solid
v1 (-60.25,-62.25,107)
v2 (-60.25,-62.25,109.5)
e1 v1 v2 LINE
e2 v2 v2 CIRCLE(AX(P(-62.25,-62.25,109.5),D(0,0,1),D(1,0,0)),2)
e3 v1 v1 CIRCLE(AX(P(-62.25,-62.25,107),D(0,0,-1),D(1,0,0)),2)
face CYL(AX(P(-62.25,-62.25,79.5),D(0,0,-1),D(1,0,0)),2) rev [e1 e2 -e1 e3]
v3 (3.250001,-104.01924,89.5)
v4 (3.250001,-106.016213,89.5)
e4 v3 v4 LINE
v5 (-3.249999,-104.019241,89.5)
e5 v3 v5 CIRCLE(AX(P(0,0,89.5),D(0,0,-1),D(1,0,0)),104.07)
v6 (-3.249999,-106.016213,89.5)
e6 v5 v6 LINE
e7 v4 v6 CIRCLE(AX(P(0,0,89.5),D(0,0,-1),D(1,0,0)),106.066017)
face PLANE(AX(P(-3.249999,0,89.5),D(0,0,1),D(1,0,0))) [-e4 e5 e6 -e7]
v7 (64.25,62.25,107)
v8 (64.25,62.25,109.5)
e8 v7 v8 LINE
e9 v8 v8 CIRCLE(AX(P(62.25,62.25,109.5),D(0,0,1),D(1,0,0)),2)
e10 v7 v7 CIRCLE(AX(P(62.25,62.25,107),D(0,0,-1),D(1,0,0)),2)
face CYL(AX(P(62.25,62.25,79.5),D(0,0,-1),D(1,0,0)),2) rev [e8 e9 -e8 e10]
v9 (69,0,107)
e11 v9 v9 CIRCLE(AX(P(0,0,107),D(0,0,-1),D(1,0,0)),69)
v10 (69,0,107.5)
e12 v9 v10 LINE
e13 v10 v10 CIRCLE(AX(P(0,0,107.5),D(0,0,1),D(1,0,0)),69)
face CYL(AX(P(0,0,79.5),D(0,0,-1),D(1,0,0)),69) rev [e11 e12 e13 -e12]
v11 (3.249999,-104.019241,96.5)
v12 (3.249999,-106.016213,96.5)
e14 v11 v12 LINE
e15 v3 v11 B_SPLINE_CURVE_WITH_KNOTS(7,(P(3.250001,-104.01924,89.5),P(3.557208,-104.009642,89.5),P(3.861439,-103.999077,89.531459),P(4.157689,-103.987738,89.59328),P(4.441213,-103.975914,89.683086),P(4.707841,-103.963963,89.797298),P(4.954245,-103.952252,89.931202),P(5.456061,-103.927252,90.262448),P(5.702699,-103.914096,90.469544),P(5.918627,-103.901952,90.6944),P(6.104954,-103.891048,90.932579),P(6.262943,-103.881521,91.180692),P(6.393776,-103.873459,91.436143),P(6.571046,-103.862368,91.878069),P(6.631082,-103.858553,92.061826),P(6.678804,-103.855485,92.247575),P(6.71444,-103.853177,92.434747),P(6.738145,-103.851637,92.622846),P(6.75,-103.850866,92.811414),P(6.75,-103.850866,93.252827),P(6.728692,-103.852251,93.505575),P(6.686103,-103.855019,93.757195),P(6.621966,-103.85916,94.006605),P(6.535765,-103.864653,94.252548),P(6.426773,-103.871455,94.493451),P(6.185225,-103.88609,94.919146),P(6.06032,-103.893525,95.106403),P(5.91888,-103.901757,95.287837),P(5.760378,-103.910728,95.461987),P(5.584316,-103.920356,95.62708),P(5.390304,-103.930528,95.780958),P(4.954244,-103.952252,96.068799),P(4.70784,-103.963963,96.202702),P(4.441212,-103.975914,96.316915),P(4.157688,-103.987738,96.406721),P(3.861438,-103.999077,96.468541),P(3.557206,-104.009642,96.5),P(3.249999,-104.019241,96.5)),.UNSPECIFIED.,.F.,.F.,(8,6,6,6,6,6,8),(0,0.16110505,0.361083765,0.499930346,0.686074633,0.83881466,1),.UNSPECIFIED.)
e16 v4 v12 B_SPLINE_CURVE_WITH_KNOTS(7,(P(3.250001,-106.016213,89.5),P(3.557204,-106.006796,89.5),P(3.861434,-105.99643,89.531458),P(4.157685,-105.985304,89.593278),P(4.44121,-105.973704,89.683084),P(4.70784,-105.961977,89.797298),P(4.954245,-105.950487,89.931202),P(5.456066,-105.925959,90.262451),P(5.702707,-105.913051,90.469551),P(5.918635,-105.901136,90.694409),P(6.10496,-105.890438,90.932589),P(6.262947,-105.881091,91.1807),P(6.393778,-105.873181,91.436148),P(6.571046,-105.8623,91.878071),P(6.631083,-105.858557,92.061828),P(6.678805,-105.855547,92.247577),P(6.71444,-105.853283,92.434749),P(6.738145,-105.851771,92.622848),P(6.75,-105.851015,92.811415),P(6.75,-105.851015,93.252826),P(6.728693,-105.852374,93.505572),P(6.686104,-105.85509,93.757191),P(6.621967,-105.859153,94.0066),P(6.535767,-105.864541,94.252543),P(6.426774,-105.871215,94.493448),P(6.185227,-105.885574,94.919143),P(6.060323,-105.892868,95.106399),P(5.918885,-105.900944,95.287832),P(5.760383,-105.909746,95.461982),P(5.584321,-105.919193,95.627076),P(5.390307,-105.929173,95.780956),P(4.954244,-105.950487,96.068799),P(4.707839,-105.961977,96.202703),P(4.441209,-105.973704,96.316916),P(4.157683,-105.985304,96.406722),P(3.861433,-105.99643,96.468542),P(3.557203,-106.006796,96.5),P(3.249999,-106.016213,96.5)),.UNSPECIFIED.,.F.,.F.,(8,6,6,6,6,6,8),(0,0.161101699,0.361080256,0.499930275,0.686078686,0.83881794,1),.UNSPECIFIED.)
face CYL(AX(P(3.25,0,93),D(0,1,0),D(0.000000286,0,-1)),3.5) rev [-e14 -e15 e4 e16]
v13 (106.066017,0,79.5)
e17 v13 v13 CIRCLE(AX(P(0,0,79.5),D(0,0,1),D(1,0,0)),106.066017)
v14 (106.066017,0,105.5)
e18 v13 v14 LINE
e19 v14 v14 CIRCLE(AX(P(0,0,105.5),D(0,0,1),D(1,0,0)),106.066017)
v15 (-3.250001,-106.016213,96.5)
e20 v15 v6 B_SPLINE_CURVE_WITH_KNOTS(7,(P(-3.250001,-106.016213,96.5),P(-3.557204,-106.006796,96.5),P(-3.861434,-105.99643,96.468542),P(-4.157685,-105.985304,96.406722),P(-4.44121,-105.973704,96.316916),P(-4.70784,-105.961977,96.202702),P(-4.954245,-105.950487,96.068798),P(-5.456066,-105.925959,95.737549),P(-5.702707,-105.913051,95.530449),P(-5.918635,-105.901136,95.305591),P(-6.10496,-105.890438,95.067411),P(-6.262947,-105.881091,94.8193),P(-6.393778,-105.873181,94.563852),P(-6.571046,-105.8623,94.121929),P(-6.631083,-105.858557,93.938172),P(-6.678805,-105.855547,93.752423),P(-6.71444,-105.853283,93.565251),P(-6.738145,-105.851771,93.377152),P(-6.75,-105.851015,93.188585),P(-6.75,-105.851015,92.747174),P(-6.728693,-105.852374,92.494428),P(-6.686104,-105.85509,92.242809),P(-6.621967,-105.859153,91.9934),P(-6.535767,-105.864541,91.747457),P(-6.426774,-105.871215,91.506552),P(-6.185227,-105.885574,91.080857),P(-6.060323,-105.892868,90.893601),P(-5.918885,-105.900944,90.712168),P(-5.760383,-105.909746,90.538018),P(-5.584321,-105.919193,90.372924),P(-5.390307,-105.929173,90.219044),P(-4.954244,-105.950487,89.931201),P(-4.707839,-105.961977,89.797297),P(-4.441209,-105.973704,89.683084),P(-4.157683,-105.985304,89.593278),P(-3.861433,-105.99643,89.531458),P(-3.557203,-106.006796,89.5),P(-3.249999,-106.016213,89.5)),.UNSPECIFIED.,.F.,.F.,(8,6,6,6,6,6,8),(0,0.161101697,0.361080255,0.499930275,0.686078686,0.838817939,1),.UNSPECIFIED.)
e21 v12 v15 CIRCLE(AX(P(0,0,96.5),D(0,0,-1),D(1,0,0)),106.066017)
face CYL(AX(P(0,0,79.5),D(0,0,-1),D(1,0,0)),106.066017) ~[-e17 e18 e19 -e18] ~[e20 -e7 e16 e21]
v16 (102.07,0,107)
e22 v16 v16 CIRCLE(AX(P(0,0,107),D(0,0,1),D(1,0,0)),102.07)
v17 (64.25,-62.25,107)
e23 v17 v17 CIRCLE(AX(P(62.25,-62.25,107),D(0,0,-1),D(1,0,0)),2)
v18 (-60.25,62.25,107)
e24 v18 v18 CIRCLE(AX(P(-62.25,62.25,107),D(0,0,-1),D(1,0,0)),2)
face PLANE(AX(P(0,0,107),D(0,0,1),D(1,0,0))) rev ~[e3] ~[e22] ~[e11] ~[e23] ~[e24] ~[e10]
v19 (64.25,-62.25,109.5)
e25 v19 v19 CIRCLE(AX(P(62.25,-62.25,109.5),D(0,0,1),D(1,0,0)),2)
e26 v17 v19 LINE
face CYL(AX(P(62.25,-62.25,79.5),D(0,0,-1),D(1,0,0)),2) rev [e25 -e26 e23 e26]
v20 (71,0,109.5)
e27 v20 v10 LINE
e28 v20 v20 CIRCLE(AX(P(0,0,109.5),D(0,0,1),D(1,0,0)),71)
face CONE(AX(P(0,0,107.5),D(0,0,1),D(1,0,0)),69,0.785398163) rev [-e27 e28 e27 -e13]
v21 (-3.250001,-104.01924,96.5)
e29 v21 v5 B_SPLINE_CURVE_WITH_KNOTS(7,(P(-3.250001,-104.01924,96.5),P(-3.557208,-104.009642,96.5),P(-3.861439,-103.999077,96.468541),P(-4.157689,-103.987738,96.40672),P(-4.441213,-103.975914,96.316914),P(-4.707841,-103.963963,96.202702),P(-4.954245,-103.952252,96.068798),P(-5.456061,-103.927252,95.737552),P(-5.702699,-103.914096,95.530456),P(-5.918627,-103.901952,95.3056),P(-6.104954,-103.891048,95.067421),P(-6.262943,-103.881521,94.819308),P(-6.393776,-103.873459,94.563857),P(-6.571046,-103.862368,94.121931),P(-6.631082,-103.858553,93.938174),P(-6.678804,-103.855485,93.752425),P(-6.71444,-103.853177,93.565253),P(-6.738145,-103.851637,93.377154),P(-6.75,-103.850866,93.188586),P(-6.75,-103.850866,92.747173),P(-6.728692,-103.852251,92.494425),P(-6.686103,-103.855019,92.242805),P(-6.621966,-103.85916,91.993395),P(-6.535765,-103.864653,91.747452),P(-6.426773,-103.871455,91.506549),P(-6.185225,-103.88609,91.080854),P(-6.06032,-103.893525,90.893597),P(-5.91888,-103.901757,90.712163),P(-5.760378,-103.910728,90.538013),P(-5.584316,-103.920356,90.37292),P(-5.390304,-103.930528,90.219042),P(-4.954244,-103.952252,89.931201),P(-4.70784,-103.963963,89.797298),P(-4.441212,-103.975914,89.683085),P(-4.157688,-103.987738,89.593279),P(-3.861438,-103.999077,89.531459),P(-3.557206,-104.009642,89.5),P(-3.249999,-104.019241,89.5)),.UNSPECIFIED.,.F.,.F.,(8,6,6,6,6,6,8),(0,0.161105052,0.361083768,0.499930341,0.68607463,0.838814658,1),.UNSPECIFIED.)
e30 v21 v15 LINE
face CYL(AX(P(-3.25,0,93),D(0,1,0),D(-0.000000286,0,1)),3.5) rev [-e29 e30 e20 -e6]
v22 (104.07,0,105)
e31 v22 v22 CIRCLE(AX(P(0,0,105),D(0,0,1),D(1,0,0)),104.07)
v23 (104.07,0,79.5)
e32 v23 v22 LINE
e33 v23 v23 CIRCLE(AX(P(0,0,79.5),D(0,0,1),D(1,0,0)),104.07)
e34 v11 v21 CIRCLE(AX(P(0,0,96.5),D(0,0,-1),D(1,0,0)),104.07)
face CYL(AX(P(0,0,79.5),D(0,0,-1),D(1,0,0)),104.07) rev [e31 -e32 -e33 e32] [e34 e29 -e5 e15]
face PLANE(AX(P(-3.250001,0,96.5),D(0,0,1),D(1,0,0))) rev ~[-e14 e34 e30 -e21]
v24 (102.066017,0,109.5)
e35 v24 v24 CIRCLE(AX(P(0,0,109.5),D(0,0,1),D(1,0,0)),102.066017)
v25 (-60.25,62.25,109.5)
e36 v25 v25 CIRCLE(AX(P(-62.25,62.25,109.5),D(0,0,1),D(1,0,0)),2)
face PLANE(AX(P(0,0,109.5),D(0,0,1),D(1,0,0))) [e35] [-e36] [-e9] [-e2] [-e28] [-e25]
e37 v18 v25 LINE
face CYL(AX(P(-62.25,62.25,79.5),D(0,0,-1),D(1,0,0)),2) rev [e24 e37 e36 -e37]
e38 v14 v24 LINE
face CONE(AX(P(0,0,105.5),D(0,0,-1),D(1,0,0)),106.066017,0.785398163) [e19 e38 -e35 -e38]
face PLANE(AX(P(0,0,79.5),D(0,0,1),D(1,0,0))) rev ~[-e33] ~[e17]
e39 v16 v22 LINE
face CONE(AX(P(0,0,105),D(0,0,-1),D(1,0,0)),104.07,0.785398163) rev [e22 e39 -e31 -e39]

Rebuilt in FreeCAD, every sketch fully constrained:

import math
import FreeCAD as App
import Part
import Sketcher
from FreeCAD import Vector
Q = App.Units.Quantity


def edges_at(feature, points):
    """Names of the edges that pass closest to the given points."""
    edges = feature.Shape.Edges
    near = lambda p: min(range(len(edges)), key=lambda i: edges[i].distToShape(Part.Vertex(*p))[0])
    return sorted({f"Edge{near(p) + 1}" for p in points})

doc = App.newDocument("Part")
params = doc.addObject("Spreadsheet::Sheet", "Params")
for row, (alias, value) in enumerate([
    ("sketch1_diameter", "4 mm"),
    ("sketch1_diameter2", "138 mm"),
    ("pad1_length", "30 mm"),
    ("sketch2_diameter", "208.14 mm"),
    ("pocket1_length", "27.5 mm"),
    ("chamfer_size", "4 mm"),
    ("chamfer2_size", "2 mm"),
    ("chamfer3_size", "2 mm"),
    ("sketch3_radius", "3.5 mm"),
    ("sketch3_width", "6.5 mm"),
    ("pocket2_length", "109 mm"),
], start=1):
    params.set(f"A{row}", alias)
    params.set(f"B{row}", "=" + value)
    params.setAlias(f"B{row}", alias)

body = doc.addObject("PartDesign::Body", "Body")

sketch1 = body.newObject("Sketcher::SketchObject", "Sketch")
sketch1.AttachmentSupport = (doc.getObject("XY_Plane"), [""])
sketch1.MapMode = "FlatFace"
sketch1.addGeometry([
    Part.Circle(Vector(0, 0, 0), Vector(0, 0, 1), 106.066017),
    Part.Circle(Vector(-62.25, -62.25, 0), Vector(0, 0, 1), 2),
    Part.Circle(Vector(62.25, -62.25, 0), Vector(0, 0, 1), 2),
    Part.Circle(Vector(-62.25, 62.25, 0), Vector(0, 0, 1), 2),
    Part.Circle(Vector(0, 0, 0), Vector(0, 0, 1), 69),
    Part.Circle(Vector(62.25, 62.25, 0), Vector(0, 0, 1), 2),
], False)
sketch1.addConstraint([
    Sketcher.Constraint("Coincident", 0, 3, -1, 1),
    Sketcher.Constraint("Coincident", 4, 3, -1, 1),
    Sketcher.Constraint("Equal", 1, 2),
    Sketcher.Constraint("Equal", 2, 3),
    Sketcher.Constraint("Equal", 3, 5),
    Sketcher.Constraint("Symmetric", 2, 3, 3, 3, -1, 1),
    Sketcher.Constraint("Symmetric", 1, 3, 5, 3, -1, 1),
    Sketcher.Constraint("Symmetric", 1, 3, 2, 3, -2),
    Sketcher.Constraint("Diameter", 1, Q("4 mm")),
    Sketcher.Constraint("Diameter", 4, Q("138 mm")),
    Sketcher.Constraint("DistanceX", 1, 3, 2, 3, Q("124.5 mm")),
    Sketcher.Constraint("DistanceY", 1, 3, 3, 3, Q("124.5 mm")),
    Sketcher.Constraint("Diameter", 0, Q("212.132034 mm")),
])
sketch1.setExpression("Constraints[8]", "Params.sketch1_diameter")
sketch1.setExpression("Constraints[9]", "Params.sketch1_diameter2")
pad1 = body.newObject("PartDesign::Pad", "Pad")
pad1.Profile = sketch1
pad1.setExpression("Length", "Params.pad1_length")

sketch2 = body.newObject("Sketcher::SketchObject", "Sketch001")
sketch2.AttachmentSupport = (doc.getObject("XY_Plane"), [""])
sketch2.MapMode = "FlatFace"
sketch2.addGeometry(Part.Circle(Vector(0, 0, 0), Vector(0, 0, 1), 104.07), False)
sketch2.addConstraint([
    Sketcher.Constraint("Coincident", 0, 3, -1, 1),
    Sketcher.Constraint("Diameter", 0, Q("208.14 mm")),
])
sketch2.setExpression("Constraints[1]", "Params.sketch2_diameter")
pocket1 = body.newObject("PartDesign::Pocket", "Pocket")
pocket1.Profile = sketch2
pocket1.setExpression("Length", "Params.pocket1_length")
pocket1.Reversed = True
doc.recompute()

chamfer = body.newObject("PartDesign::Chamfer", "Chamfer")
chamfer.Base = (pocket1, edges_at(pocket1, [(-106.066, 0, 30)]))
chamfer.setExpression("Size", "Params.chamfer_size")
doc.recompute()

chamfer2 = body.newObject("PartDesign::Chamfer", "Chamfer001")
chamfer2.Base = (chamfer, edges_at(chamfer, [(-69, 0, 30)]))
chamfer2.setExpression("Size", "Params.chamfer2_size")
doc.recompute()

chamfer3 = body.newObject("PartDesign::Chamfer", "Chamfer002")
chamfer3.Base = (chamfer2, edges_at(chamfer2, [(-104.07, 0, 27.5)]))
chamfer3.setExpression("Size", "Params.chamfer3_size")

sketch3 = body.newObject("Sketcher::SketchObject", "Sketch002")
sketch3.AttachmentSupport = (doc.getObject("XZ_Plane"), [""])
sketch3.MapMode = "FlatFace"
sketch3.addGeometry([
    Part.ArcOfCircle(Part.Circle(Vector(-3.25, 13.5, 0), Vector(0, 0, 1), 3.5), math.radians(90.000016), math.radians(270.000016)),
    Part.LineSegment(Vector(-3.249999, 10, 0), Vector(3.250001, 10, 0)),
    Part.ArcOfCircle(Part.Circle(Vector(3.25, 13.5, 0), Vector(0, 0, 1), 3.5), math.radians(-89.999984), math.radians(90.000016)),
    Part.LineSegment(Vector(3.249999, 17, 0), Vector(-3.250001, 17, 0)),
], False)
sketch3.addConstraint([
    Sketcher.Constraint("Tangent", 0, 2, 1, 1),
    Sketcher.Constraint("Tangent", 1, 2, 2, 1),
    Sketcher.Constraint("Tangent", 2, 2, 3, 1),
    Sketcher.Constraint("Tangent", 3, 2, 0, 1),
    Sketcher.Constraint("Horizontal", 1),
    Sketcher.Constraint("Horizontal", 3),
    Sketcher.Constraint("Radius", 0, Q("3.5 mm")),
    Sketcher.Constraint("DistanceX", 1, 1, 1, 2, Q("6.5 mm")),
    Sketcher.Constraint("DistanceY", -1, 1, 0, 2, Q("10 mm")),
    Sketcher.Constraint("DistanceX", 0, 3, -1, 1, Q("3.25 mm")),
])
sketch3.setExpression("Constraints[6]", "Params.sketch3_radius")
sketch3.setExpression("Constraints[7]", "Params.sketch3_width")
pocket2 = body.newObject("PartDesign::Pocket", "Pocket001")
pocket2.Profile = sketch3
pocket2.setExpression("Length", "Params.pocket2_length")
pocket2.Reversed = True
body2 = doc.addObject("PartDesign::Body", "Body001")
doc.recompute()

body.Placement = App.Placement(Vector(0, 0, 79.5), App.Rotation(Vector(0, 0, 1), 0))
boolean = body2.newObject("PartDesign::Boolean", "Boolean")
boolean.Type = "Fuse"
boolean.addObjects([body])

doc.recompute()
